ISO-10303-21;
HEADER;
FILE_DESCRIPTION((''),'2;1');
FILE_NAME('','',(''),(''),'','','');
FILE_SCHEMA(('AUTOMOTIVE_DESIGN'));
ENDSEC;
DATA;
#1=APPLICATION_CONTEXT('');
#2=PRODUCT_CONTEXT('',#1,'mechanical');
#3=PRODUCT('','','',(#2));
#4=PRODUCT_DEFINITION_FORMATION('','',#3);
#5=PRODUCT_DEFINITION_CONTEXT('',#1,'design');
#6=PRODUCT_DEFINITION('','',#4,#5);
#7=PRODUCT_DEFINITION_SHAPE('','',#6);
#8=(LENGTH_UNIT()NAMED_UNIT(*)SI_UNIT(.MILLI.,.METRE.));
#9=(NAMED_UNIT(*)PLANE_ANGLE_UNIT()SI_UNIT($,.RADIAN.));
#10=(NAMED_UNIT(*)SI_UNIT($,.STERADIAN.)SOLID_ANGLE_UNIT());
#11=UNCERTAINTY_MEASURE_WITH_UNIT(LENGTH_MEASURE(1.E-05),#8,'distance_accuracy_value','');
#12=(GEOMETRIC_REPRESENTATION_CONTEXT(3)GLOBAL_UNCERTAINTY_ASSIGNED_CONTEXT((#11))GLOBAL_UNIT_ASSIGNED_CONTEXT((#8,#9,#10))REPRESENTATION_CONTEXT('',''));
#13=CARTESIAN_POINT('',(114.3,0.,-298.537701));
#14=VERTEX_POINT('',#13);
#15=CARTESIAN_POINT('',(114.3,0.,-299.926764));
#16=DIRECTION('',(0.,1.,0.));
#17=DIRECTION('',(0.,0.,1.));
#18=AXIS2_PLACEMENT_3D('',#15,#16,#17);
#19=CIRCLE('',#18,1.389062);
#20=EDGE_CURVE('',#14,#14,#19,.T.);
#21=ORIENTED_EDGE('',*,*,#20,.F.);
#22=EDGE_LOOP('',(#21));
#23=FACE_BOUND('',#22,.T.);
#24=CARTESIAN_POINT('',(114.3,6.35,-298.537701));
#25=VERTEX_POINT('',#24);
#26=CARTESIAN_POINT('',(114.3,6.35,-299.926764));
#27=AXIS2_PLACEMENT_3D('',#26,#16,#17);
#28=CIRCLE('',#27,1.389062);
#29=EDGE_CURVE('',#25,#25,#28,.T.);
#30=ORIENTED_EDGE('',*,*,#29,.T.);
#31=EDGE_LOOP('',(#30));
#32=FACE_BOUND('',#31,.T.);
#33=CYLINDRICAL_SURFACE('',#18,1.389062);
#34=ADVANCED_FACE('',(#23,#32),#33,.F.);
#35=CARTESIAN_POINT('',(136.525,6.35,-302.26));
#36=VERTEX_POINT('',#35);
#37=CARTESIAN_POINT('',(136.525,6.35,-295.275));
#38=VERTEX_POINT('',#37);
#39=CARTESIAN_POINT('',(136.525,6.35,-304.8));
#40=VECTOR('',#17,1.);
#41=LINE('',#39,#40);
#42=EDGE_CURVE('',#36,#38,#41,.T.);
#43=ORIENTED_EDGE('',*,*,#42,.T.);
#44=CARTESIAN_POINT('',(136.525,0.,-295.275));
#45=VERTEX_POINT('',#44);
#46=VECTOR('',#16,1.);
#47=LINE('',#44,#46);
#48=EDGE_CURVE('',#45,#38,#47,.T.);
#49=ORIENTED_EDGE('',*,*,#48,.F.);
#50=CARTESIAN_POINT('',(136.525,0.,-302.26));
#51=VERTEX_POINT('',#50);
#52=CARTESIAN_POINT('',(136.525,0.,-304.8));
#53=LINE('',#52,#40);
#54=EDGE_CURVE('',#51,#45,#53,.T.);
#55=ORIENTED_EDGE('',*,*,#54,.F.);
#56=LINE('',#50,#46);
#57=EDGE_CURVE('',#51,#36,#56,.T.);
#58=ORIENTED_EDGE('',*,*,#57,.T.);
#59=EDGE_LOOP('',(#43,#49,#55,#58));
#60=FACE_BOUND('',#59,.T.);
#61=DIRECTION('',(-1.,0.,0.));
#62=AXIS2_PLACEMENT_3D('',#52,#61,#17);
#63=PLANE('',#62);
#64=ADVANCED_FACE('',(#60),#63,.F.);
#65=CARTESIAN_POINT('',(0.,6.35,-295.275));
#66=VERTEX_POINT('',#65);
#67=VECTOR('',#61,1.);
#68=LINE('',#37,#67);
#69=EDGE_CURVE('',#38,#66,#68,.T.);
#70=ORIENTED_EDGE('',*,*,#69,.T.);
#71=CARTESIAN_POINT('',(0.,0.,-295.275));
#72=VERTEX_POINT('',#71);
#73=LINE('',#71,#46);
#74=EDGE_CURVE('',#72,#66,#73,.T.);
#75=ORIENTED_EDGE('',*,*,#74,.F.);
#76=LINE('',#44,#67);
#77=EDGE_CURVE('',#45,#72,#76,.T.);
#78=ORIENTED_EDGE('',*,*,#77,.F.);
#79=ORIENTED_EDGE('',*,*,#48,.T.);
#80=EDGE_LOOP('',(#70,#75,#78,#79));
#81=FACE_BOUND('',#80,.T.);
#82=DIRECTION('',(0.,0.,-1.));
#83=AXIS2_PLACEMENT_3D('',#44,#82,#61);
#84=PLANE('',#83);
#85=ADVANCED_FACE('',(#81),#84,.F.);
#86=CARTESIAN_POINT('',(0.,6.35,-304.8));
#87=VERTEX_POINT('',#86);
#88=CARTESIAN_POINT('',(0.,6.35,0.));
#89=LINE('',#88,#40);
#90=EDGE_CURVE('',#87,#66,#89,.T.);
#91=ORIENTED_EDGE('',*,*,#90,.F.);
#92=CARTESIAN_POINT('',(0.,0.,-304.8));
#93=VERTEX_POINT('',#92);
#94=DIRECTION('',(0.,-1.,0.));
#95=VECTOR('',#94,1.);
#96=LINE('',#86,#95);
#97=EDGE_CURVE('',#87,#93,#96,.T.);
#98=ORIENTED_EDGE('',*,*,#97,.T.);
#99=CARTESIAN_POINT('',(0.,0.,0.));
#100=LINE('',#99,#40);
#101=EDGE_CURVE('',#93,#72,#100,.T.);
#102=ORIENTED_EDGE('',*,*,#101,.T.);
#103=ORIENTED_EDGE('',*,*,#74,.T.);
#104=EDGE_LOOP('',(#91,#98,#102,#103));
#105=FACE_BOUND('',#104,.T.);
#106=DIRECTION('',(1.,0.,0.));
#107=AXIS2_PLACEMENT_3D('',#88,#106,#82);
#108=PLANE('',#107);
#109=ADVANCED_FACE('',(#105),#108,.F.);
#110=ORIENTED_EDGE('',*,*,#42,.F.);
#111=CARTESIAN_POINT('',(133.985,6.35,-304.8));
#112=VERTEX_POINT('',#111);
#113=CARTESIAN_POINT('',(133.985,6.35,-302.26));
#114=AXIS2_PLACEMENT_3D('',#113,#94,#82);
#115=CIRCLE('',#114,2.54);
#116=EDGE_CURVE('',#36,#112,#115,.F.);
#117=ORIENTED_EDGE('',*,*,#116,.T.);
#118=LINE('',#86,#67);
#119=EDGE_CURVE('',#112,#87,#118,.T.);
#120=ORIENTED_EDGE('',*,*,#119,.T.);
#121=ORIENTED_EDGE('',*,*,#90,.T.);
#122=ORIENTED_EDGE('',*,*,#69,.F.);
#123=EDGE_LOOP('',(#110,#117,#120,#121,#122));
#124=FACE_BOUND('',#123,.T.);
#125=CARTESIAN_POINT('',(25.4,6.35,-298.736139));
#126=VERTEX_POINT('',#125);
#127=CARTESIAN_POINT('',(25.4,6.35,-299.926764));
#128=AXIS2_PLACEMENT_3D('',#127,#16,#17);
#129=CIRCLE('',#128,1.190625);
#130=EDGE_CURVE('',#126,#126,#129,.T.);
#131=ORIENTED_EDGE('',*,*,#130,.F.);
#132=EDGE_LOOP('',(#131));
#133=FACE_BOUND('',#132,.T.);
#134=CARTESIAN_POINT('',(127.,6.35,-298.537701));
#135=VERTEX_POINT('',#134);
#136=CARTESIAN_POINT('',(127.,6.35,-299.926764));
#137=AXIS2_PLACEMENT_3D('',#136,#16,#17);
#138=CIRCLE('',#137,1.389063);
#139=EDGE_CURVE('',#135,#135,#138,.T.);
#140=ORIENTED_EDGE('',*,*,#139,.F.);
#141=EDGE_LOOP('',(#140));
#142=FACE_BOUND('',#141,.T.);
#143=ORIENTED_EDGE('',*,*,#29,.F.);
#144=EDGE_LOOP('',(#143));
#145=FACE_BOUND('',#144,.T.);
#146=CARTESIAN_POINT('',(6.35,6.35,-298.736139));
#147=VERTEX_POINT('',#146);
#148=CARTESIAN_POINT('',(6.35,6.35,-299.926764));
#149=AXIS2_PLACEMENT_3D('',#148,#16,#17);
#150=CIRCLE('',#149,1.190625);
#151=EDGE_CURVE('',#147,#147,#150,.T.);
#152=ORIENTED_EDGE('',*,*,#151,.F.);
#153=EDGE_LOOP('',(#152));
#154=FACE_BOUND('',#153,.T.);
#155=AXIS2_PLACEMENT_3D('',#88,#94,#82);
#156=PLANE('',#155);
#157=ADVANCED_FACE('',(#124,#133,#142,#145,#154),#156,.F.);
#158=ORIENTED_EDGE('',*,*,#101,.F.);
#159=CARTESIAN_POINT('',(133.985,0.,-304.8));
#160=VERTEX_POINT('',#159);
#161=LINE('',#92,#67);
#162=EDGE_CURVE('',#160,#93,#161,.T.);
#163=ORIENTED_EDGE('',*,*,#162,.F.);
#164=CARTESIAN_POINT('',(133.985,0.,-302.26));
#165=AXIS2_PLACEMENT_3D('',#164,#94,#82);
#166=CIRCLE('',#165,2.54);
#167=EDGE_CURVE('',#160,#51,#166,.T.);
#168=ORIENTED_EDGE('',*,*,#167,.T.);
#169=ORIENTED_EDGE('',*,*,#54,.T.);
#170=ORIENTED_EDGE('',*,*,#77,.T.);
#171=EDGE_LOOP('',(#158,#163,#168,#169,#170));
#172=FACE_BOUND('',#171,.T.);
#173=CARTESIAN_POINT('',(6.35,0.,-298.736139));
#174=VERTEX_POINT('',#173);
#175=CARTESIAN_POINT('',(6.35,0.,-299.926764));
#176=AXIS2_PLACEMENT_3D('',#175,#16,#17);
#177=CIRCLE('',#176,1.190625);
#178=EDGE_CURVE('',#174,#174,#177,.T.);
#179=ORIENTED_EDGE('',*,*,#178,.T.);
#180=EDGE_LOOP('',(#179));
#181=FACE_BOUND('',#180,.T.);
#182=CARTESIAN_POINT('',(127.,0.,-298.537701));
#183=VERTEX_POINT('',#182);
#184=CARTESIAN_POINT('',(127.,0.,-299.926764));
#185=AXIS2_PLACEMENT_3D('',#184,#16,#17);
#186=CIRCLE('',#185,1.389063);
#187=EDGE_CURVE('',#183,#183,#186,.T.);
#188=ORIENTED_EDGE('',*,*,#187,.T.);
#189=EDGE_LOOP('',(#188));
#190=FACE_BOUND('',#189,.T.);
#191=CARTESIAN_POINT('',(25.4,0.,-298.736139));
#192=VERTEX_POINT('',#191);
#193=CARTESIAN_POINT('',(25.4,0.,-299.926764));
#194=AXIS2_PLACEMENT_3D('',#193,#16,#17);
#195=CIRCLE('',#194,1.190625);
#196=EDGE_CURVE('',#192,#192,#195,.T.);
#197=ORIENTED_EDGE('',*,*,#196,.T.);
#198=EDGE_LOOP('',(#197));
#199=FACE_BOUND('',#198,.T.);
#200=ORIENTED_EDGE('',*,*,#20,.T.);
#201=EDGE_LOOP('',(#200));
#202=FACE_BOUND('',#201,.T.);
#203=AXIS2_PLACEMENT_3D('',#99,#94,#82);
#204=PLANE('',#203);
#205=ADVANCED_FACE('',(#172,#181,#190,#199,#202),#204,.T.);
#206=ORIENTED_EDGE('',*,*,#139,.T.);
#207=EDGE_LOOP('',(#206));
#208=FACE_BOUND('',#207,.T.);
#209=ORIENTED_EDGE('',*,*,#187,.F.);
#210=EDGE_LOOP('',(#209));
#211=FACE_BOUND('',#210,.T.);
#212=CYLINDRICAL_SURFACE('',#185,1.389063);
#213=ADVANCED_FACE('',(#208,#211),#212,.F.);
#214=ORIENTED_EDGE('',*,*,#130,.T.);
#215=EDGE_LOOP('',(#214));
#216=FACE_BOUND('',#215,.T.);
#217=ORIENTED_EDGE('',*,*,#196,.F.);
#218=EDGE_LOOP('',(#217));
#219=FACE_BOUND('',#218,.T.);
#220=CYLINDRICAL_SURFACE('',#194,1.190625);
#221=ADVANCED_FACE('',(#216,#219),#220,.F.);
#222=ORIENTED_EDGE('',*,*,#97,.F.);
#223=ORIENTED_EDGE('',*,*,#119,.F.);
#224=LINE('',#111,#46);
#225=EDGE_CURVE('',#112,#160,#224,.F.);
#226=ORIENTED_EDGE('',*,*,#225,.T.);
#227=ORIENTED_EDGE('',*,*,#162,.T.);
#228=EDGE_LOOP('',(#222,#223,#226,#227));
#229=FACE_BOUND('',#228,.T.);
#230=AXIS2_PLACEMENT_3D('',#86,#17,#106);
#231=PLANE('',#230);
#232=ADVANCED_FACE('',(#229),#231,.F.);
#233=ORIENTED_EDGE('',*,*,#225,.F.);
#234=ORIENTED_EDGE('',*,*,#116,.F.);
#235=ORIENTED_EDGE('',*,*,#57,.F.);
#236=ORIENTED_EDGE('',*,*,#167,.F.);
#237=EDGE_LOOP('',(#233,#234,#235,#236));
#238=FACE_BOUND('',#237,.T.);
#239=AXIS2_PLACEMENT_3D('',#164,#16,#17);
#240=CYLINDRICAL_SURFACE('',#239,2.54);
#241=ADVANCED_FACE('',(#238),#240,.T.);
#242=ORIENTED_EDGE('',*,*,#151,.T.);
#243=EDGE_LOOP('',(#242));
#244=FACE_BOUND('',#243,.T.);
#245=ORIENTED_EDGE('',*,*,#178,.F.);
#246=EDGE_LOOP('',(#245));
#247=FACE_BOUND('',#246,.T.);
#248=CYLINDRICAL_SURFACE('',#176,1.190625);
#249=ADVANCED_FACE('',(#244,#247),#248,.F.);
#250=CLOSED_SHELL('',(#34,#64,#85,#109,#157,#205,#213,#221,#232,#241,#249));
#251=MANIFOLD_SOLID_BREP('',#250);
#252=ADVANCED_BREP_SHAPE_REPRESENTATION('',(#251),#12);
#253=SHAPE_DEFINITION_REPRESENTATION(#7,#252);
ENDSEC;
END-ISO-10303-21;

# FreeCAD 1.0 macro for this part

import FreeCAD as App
import Part
import Sketcher
Q = App.Units.Quantity


def edges_at(feature, points):
    """Names of the edges that pass closest to the given points."""
    edges = feature.Shape.Edges
    near = lambda p: min(range(len(edges)), key=lambda i: edges[i].distToShape(Part.Vertex(*p))[0])
    return sorted({f"Edge{near(p) + 1}" for p in points})

doc = App.newDocument("Part")
body = doc.addObject("PartDesign::Body", "Body")

sketch1 = body.newObject("Sketcher::SketchObject", "Sketch")
sketch1.AttachmentSupport = (doc.getObject("XZ_Plane"), [""])
sketch1.MapMode = "FlatFace"
sketch1.addGeometry([
    Part.LineSegment(App.Vector(0, -305, 0), App.Vector(0, 0, 0)),
    Part.LineSegment(App.Vector(0, 0, 0), App.Vector(305, 0, 0)),
    Part.LineSegment(App.Vector(305, 0, 0), App.Vector(305, -305, 0)),
    Part.LineSegment(App.Vector(305, -305, 0), App.Vector(0, -305, 0)),
], False)
sketch1.addConstraint([
    Sketcher.Constraint("Coincident", 0, 2, 1, 1),
    Sketcher.Constraint("Coincident", 1, 2, 2, 1),
    Sketcher.Constraint("Coincident", 2, 2, 3, 1),
    Sketcher.Constraint("Coincident", 3, 2, 0, 1),
    Sketcher.Constraint("Vertical", 0),
    Sketcher.Constraint("Horizontal", 1),
    Sketcher.Constraint("Vertical", 2),
    Sketcher.Constraint("Horizontal", 3),
    Sketcher.Constraint("Coincident", 0, 2, -1, 1),
    Sketcher.Constraint("Equal", 3, 0),
    Sketcher.Constraint("DistanceX", 1, 1, 1, 2, Q("12 in")),
])
pad1 = body.newObject("PartDesign::Pad", "Pad")
pad1.Profile = sketch1
pad1.Length = Q("0.25 in")
pad1.Reversed = True

sketch2 = body.newObject("Sketcher::SketchObject", "Sketch001")
sketch2.AttachmentSupport = (doc.getObject("XZ_Plane"), [""])
sketch2.MapMode = "FlatFace"
sketch2.AttachmentOffset = App.Placement(App.Vector(0, 0, -0.25 * 25.4), App.Rotation())
sketch2.addGeometry([
    Part.LineSegment(App.Vector(137, -305, 0), App.Vector(137, -295, 0)),
    Part.LineSegment(App.Vector(137, -295, 0), App.Vector(0, -295, 0)),
    Part.LineSegment(App.Vector(0, -295, 0), App.Vector(0, 0, 0)),
    Part.LineSegment(App.Vector(0, 0, 0), App.Vector(305, 0, 0)),
    Part.LineSegment(App.Vector(305, 0, 0), App.Vector(305, -305, 0)),
    Part.LineSegment(App.Vector(305, -305, 0), App.Vector(137, -305, 0)),
], False)
sketch2.addConstraint([
    Sketcher.Constraint("Coincident", 0, 2, 1, 1),
    Sketcher.Constraint("Coincident", 1, 2, 2, 1),
    Sketcher.Constraint("Coincident", 2, 2, 3, 1),
    Sketcher.Constraint("Coincident", 3, 2, 4, 1),
    Sketcher.Constraint("Coincident", 4, 2, 5, 1),
    Sketcher.Constraint("Coincident", 5, 2, 0, 1),
    Sketcher.Constraint("Vertical", 0),
    Sketcher.Constraint("Horizontal", 1),
    Sketcher.Constraint("Vertical", 2),
    Sketcher.Constraint("Horizontal", 3),
    Sketcher.Constraint("Vertical", 4),
    Sketcher.Constraint("Horizontal", 5),
    Sketcher.Constraint("Coincident", 2, 2, -1, 1),
    Sketcher.Constraint("Equal", 3, 4),
    Sketcher.Constraint("DistanceX", 3, 1, 3, 2, Q("12 in")),
    Sketcher.Constraint("DistanceX", 1, 2, 1, 1, Q("5.375 in")),
    Sketcher.Constraint("DistanceY", 0, 1, 0, 2, Q("0.375 in")),
])
pocket1 = body.newObject("PartDesign::Pocket", "Pocket")
pocket1.Profile = sketch2
pocket1.Length = Q("0.25 in")
pocket1.Reversed = True

sketch3 = body.newObject("Sketcher::SketchObject", "Sketch002")
sketch3.AttachmentSupport = (doc.getObject("XZ_Plane"), [""])
sketch3.MapMode = "FlatFace"
sketch3.AttachmentOffset = App.Placement(App.Vector(0, 0, -0.25 * 25.4), App.Rotation())
sketch3.addGeometry([
    Part.Circle(App.Vector(6.3, -299.9, 0), App.Vector(0, 0, 1), 1.2),
    Part.Circle(App.Vector(25.4, -299.9, 0), App.Vector(0, 0, 1), 1.2),
    Part.Circle(App.Vector(114.3, -299.9, 0), App.Vector(0, 0, 1), 1.4),
    Part.Circle(App.Vector(127, -299.9, 0), App.Vector(0, 0, 1), 1.4),
], False)
sketch3.addConstraint([
    Sketcher.Constraint("Equal", 0, 1),
    Sketcher.Constraint("Equal", 2, 3),
    Sketcher.Constraint("Horizontal", 0, 3, 1, 3),
    Sketcher.Constraint("Horizontal", 1, 3, 2, 3),
    Sketcher.Constraint("Horizontal", 2, 3, 3, 3),
    Sketcher.Constraint("Diameter", 0, Q("0.09375 in")),
    Sketcher.Constraint("Diameter", 2, Q("0.109375 in")),
    Sketcher.Constraint("DistanceX", -1, 1, 1, 3, Q("1 in")),
    Sketcher.Constraint("DistanceX", -1, 1, 3, 3, Q("5 in")),
    Sketcher.Constraint("DistanceX", -1, 1, 2, 3, Q("4.5 in")),
    Sketcher.Constraint("DistanceX", -1, 1, 0, 3, Q("0.25 in")),
    Sketcher.Constraint("DistanceY", 0, 3, -1, 1, 299.926764),
])
pocket2 = body.newObject("PartDesign::Pocket", "Pocket001")
pocket2.Profile = sketch3
pocket2.Type = "ThroughAll"
pocket2.Reversed = True
doc.recompute()

fillet = body.newObject("PartDesign::Fillet", "Fillet")
fillet.Base = (pocket2, edges_at(pocket2, [(136.525, 3.175, -304.8)]))
fillet.Radius = Q("0.1 in")

doc.recompute()
